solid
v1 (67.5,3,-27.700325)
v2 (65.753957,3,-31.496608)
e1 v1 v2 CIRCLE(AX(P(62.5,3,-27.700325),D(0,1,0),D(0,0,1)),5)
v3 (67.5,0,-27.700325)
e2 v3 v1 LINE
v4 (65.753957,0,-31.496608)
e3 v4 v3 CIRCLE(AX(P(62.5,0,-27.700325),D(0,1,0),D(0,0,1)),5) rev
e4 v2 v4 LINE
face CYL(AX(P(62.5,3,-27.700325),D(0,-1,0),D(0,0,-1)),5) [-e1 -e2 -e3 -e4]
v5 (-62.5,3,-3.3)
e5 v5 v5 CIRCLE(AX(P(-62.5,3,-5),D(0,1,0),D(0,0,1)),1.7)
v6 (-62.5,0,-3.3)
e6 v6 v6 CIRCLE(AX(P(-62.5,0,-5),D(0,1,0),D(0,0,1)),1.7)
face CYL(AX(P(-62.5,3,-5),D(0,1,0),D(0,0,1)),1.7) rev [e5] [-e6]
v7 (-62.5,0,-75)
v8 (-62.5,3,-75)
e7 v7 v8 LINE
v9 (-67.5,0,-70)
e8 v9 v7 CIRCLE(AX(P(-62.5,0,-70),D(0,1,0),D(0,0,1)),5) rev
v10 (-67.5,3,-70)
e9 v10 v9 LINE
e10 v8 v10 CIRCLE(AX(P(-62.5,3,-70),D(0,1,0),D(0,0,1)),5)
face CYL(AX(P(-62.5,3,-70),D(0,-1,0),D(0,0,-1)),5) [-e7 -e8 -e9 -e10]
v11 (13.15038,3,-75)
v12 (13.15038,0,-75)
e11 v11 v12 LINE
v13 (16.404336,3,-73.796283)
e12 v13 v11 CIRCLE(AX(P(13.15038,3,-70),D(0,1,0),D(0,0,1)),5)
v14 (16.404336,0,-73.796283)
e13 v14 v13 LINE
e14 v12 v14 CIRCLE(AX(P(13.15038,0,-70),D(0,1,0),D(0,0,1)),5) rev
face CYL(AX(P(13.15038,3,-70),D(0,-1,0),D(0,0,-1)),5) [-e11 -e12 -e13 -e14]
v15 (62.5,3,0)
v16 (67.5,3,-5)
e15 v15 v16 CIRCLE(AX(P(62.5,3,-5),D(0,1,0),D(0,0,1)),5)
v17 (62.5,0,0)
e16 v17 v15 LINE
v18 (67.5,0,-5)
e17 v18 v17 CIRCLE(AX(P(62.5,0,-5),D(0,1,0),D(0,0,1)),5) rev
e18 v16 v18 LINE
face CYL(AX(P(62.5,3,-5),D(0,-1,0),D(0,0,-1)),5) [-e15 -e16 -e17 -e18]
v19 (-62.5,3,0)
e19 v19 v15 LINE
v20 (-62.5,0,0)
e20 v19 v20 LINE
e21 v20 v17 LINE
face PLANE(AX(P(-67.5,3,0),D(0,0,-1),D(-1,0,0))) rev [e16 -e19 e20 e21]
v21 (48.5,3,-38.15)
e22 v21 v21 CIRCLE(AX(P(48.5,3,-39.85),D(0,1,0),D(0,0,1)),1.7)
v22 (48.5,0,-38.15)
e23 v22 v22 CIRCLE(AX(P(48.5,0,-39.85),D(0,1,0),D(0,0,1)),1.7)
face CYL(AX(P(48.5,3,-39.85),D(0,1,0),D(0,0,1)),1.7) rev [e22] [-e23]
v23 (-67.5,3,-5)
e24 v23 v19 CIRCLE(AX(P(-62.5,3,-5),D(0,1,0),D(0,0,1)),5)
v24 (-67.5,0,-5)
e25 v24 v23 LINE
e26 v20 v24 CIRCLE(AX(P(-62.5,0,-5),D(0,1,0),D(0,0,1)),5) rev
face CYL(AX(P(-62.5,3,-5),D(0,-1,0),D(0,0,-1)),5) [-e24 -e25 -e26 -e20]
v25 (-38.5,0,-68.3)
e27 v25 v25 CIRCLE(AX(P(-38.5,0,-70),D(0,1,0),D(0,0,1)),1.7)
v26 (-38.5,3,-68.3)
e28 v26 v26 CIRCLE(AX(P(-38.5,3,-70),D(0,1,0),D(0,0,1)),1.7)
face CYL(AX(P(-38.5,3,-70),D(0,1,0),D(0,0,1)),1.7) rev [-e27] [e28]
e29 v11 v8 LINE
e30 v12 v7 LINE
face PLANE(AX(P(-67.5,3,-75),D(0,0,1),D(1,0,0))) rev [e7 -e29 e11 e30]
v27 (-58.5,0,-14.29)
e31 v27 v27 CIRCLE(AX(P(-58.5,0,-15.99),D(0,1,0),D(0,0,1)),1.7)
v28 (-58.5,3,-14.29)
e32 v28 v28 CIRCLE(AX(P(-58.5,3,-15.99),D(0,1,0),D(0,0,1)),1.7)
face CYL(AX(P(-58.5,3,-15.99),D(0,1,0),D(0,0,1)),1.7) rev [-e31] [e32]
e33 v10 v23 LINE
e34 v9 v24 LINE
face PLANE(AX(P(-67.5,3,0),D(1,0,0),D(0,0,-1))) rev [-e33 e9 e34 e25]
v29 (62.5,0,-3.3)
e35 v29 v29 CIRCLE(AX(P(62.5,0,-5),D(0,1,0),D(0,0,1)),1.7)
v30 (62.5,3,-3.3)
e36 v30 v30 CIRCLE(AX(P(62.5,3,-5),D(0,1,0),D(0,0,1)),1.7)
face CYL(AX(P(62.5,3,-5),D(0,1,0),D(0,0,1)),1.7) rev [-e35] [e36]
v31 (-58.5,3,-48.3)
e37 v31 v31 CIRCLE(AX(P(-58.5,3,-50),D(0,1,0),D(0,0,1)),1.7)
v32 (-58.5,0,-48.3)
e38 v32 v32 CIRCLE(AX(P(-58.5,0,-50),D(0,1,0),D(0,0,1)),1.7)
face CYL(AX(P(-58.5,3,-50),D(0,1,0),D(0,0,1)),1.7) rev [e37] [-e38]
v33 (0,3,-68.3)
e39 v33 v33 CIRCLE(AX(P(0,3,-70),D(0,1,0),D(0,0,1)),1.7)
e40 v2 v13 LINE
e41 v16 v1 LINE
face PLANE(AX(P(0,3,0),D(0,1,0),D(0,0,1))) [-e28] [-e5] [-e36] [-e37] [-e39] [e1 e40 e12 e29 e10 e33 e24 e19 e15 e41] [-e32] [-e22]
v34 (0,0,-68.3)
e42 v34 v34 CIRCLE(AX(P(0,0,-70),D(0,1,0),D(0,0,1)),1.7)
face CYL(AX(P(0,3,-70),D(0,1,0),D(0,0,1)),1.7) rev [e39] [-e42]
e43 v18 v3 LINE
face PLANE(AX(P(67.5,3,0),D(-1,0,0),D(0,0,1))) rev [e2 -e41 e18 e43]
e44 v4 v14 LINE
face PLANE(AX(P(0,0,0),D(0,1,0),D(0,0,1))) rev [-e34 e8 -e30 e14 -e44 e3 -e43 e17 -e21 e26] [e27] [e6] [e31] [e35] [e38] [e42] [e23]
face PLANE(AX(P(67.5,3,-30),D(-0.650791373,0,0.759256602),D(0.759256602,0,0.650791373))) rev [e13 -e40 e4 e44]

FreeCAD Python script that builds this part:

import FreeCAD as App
import Part
import Sketcher

V = App.Vector
Q = App.Units.Quantity


def edges_at(feature, points):
    """Names of the edges that pass closest to the given points."""
    edges = feature.Shape.Edges
    near = lambda p: min(range(len(edges)), key=lambda i: edges[i].distToShape(Part.Vertex(*p))[0])
    return sorted({f"Edge{near(p) + 1}" for p in points})


def add_polygon(sketch, points):
    """Adds a closed chain of lines whose ends are joined by coincident constraints."""
    first, n = sketch.GeometryCount, len(points)
    for a, b in zip(points, points[1:] + points[:1]):
        sketch.addGeometry(Part.LineSegment(App.Vector(*a, 0), App.Vector(*b, 0)), False)
    for i in range(n):
        sketch.addConstraint(Sketcher.Constraint("Coincident", first + i, 2, first + (i + 1) % n, 1))

doc = App.newDocument("Part")
body = doc.addObject("PartDesign::Body", "Body")

sketch1 = body.newObject("Sketcher::SketchObject", "Sketch")
sketch1.AttachmentSupport = (doc.getObject("XZ_Plane"), [""])
sketch1.MapMode = "FlatFace"
add_polygon(sketch1, [(-68, 0), (68, 0), (68, -30), (15, -75), (-68, -75)])
sketch1.addConstraint([
    Sketcher.Constraint("Horizontal", 0),
    Sketcher.Constraint("Vertical", 1),
    Sketcher.Constraint("Horizontal", 3),
    Sketcher.Constraint("Vertical", 4),
    Sketcher.Constraint("Symmetric", 0, 2, 4, 2, -1, 1),
    Sketcher.Constraint("DistanceX", 0, 1, 0, 2, Q("135 mm")),
    Sketcher.Constraint("DistanceY", 1, 2, 1, 1, Q("30 mm")),
    Sketcher.Constraint("DistanceY", 4, 1, 4, 2, Q("75 mm")),
    Sketcher.Constraint("DistanceX", 3, 2, 3, 1, Q("82.5 mm")),
])
pad1 = body.newObject("PartDesign::Pad", "Pad")
pad1.Profile = sketch1
pad1.Length = 3
pad1.Reversed = True
doc.recompute()

fillet = body.newObject("PartDesign::Fillet", "Fillet")
fillet.Base = (pad1, edges_at(pad1, [
    (67.5, 1.5, 0),
    (-67.5, 1.5, 0),
    (-67.5, 1.5, -75),
    (15, 1.5, -75),
    (67.5, 1.5, -30),
]))
fillet.Radius = 5

sketch2 = body.newObject("Sketcher::SketchObject", "Sketch001")
sketch2.AttachmentSupport = (doc.getObject("XZ_Plane"), [""])
sketch2.MapMode = "FlatFace"
sketch2.AttachmentOffset = App.Placement(V(0, 0, -3), App.Rotation())
sketch2.addGeometry([
    Part.Circle(V(-62.5, -5, 0), V(0, 0, 1), 1),
    Part.Circle(V(62.5, -5, 0), V(0, 0, 1), 1),
    Part.Circle(V(0, -70, 0), V(0, 0, 1), 1),
    Part.Circle(V(-58.5, -16, 0), V(0, 0, 1), 1.5),
    Part.Circle(V(-58.5, -50, 0), V(0, 0, 1), 1.5),
    Part.Circle(V(-38.5, -70, 0), V(0, 0, 1), 1.5),
    Part.Circle(V(48.5, -39.9, 0), V(0, 0, 1), 1.5),
], False)
sketch2.addConstraint([
    Sketcher.Constraint("Equal", 0, 1),
    Sketcher.Constraint("Equal", 1, 2),
    Sketcher.Constraint("Equal", 3, 4),
    Sketcher.Constraint("Equal", 4, 5),
    Sketcher.Constraint("Equal", 5, 6),
    Sketcher.Constraint("Symmetric", 0, 3, 1, 3, -2),
    Sketcher.Constraint("PointOnObject", 2, 3, -2),
    Sketcher.Constraint("Horizontal", 2, 3, 5, 3),
    Sketcher.Constraint("Vertical", 3, 3, 4, 3),
    Sketcher.Constraint("Diameter", 0, Q("2 mm")),
    Sketcher.Constraint("Diameter", 3, Q("3 mm")),
    Sketcher.Constraint("DistanceY", 0, 3, -1, 1, Q("5 mm")),
    Sketcher.Constraint("DistanceY", 2, 3, -1, 1, Q("70 mm")),
    Sketcher.Constraint("DistanceY", 4, 3, -1, 1, Q("50 mm")),
    Sketcher.Constraint("DistanceX", 0, 3, 1, 3, Q("125 mm")),
    Sketcher.Constraint("DistanceX", 0, 3, 3, 3, Q("4 mm")),
    Sketcher.Constraint("DistanceX", 4, 3, 5, 3, Q("20 mm")),
    Sketcher.Constraint("DistanceX", 6, 3, 1, 3, Q("14 mm")),
    Sketcher.Constraint("DistanceY", 3, 3, -1, 1, Q("15.99 mm")),
    Sketcher.Constraint("DistanceY", 6, 3, -1, 1, Q("39.85 mm")),
])
pocket1 = body.newObject("PartDesign::Pocket", "Pocket")
pocket1.Profile = sketch2
pocket1.Length = 3
pocket1.Reversed = True

sketch3 = body.newObject("Sketcher::SketchObject", "Sketch002")
sketch3.AttachmentSupport = (doc.getObject("XZ_Plane"), [""])
sketch3.MapMode = "FlatFace"
sketch3.AttachmentOffset = App.Placement(V(0, 0, -3), App.Rotation())
sketch3.addGeometry([
    Part.Circle(V(-62.5, -5, 0), V(0, 0, 1), 1.7),
    Part.Circle(V(62.5, -5, 0), V(0, 0, 1), 1.7),
    Part.Circle(V(0, -70, 0), V(0, 0, 1), 1.7),
    Part.Circle(V(-58.5, -16, 0), V(0, 0, 1), 1.7),
    Part.Circle(V(-58.5, -50, 0), V(0, 0, 1), 1.7),
    Part.Circle(V(-38.5, -70, 0), V(0, 0, 1), 1.7),
    Part.Circle(V(48.5, -39.9, 0), V(0, 0, 1), 1.7),
], False)
sketch3.addConstraint([
    Sketcher.Constraint("Equal", 0, 1),
    Sketcher.Constraint("Equal", 1, 2),
    Sketcher.Constraint("Equal", 2, 3),
    Sketcher.Constraint("Equal", 3, 4),
    Sketcher.Constraint("Equal", 4, 5),
    Sketcher.Constraint("Equal", 5, 6),
    Sketcher.Constraint("Symmetric", 0, 3, 1, 3, -2),
    Sketcher.Constraint("PointOnObject", 2, 3, -2),
    Sketcher.Constraint("Horizontal", 2, 3, 5, 3),
    Sketcher.Constraint("Vertical", 3, 3, 4, 3),
    Sketcher.Constraint("Diameter", 0, Q("3.4 mm")),
    Sketcher.Constraint("DistanceY", 0, 3, -1, 1, Q("5 mm")),
    Sketcher.Constraint("DistanceY", 2, 3, -1, 1, Q("70 mm")),
    Sketcher.Constraint("DistanceY", 4, 3, -1, 1, Q("50 mm")),
    Sketcher.Constraint("DistanceX", 0, 3, 1, 3, Q("125 mm")),
    Sketcher.Constraint("DistanceX", 0, 3, 3, 3, Q("4 mm")),
    Sketcher.Constraint("DistanceX", 4, 3, 5, 3, Q("20 mm")),
    Sketcher.Constraint("DistanceX", 6, 3, 1, 3, Q("14 mm")),
    Sketcher.Constraint("DistanceY", 3, 3, -1, 1, Q("15.99 mm")),
    Sketcher.Constraint("DistanceY", 6, 3, -1, 1, Q("39.85 mm")),
])
doc.recompute()
hole = body.newObject("PartDesign::Hole", "Hole")
hole.Profile = sketch3
hole.ThreadType = "None"
hole.Diameter = 3.4
hole.DepthType = "Dimension"
hole.Depth = 10
hole.DrillPoint = "Angled"
hole.DrillPointAngle = 118
hole.Reversed = True

doc.recompute()
